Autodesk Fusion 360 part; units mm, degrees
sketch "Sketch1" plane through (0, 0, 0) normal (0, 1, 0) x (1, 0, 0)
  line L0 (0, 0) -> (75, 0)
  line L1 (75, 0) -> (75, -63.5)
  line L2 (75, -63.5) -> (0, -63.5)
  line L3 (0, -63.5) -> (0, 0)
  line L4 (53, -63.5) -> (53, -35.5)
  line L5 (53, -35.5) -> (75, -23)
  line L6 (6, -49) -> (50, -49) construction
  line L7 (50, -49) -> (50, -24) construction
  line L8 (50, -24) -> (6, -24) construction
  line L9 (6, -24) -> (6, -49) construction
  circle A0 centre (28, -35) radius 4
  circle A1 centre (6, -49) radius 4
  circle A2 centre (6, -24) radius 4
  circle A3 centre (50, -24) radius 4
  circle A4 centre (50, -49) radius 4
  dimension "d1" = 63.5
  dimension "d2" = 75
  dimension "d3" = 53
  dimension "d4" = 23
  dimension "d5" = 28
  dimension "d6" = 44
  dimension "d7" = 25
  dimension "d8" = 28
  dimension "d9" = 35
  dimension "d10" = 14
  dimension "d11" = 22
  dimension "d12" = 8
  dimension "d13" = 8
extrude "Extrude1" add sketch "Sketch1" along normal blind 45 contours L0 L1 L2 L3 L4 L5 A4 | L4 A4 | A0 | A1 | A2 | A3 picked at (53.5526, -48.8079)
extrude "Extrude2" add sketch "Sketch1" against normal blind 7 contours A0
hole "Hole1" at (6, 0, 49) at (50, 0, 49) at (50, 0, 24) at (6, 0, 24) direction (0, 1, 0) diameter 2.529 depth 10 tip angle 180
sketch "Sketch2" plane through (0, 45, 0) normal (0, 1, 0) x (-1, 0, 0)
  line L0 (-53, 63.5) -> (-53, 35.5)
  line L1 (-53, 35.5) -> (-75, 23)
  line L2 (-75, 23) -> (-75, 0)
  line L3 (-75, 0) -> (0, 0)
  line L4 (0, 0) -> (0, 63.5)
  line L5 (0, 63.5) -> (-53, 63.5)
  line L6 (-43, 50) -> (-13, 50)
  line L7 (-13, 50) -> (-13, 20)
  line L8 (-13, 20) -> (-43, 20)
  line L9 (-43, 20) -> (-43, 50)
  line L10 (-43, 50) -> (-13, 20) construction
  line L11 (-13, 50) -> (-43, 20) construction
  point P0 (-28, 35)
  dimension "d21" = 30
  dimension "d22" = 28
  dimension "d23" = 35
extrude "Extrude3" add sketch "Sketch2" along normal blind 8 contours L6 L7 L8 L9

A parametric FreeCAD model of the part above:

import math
import FreeCAD as App
import Part
import Sketcher

V = App.Vector
Q = App.Units.Quantity


def add_polygon(sketch, points):
    """Adds a closed chain of lines whose ends are joined by coincident constraints."""
    first, n = sketch.GeometryCount, len(points)
    for a, b in zip(points, points[1:] + points[:1]):
        sketch.addGeometry(Part.LineSegment(App.Vector(*a, 0), App.Vector(*b, 0)), False)
    for i in range(n):
        sketch.addConstraint(Sketcher.Constraint("Coincident", first + i, 2, first + (i + 1) % n, 1))

doc = App.newDocument("Part")
body = doc.addObject("PartDesign::Body", "Body")
body.AllowCompound = True

# Sketch on XZ plane
sketch1 = doc.addObject("Sketcher::SketchObject", "Sketch")
body.addObject(sketch1)
sketch1.AttachmentSupport = (doc.XZ_Plane, [""])
sketch1.MapMode = "FlatFace"
sketch1.addGeometry(Part.LineSegment(V(75, 0, 0), V(0, 0, 0)), False)
sketch1.addGeometry(Part.LineSegment(V(0, 0, 0), V(0, 63.5, 0)), False)
sketch1.addGeometry(Part.LineSegment(V(0, 63.5, 0), V(53, 63.5, 0)), False)
sketch1.addGeometry(Part.LineSegment(V(53, 63.5, 0), V(53, 51.6, 0)), False)
sketch1.addGeometry(Part.ArcOfCircle(Part.Circle(V(50, 49, 0), V(0, 0, 1), 4), math.radians(41), math.radians(319)), False)
sketch1.addGeometry(Part.LineSegment(V(53, 46.4, 0), V(53, 35.5, 0)), False)
sketch1.addGeometry(Part.LineSegment(V(53, 35.5, 0), V(75, 23, 0)), False)
sketch1.addGeometry(Part.LineSegment(V(75, 23, 0), V(75, 0, 0)), False)
sketch1.addGeometry(Part.LineSegment(V(53, 46.4, 0), V(53, 51.6, 0)), False)
sketch1.addGeometry(Part.ArcOfCircle(Part.Circle(V(50, 49, 0), V(0, 0, 1), 4), math.radians(-41), math.radians(41)), False)
sketch1.addConstraint(Sketcher.Constraint("Coincident", 0, 2, 1, 1))
sketch1.addConstraint(Sketcher.Constraint("Coincident", 1, 2, 2, 1))
sketch1.addConstraint(Sketcher.Constraint("Coincident", 2, 2, 3, 1))
sketch1.addConstraint(Sketcher.Constraint("Coincident", 3, 2, 4, 1))
sketch1.addConstraint(Sketcher.Constraint("Coincident", 4, 2, 5, 1))
sketch1.addConstraint(Sketcher.Constraint("Coincident", 5, 2, 6, 1))
sketch1.addConstraint(Sketcher.Constraint("Coincident", 6, 2, 7, 1))
sketch1.addConstraint(Sketcher.Constraint("Coincident", 7, 2, 0, 1))
sketch1.addConstraint(Sketcher.Constraint("Coincident", 8, 1, 9, 1))
sketch1.addConstraint(Sketcher.Constraint("Coincident", 9, 2, 8, 2))
sketch1.addConstraint(Sketcher.Constraint("Horizontal", 0))
sketch1.addConstraint(Sketcher.Constraint("Vertical", 1))
sketch1.addConstraint(Sketcher.Constraint("Horizontal", 2))
sketch1.addConstraint(Sketcher.Constraint("Vertical", 3))
sketch1.addConstraint(Sketcher.Constraint("Vertical", 5))
sketch1.addConstraint(Sketcher.Constraint("Vertical", 7))
sketch1.addConstraint(Sketcher.Constraint("Vertical", 8))
sketch1.addConstraint(Sketcher.Constraint("Coincident", 0, 2, -1, 1))
sketch1.addConstraint(Sketcher.Constraint("Coincident", 9, 3, 4, 3))
sketch1.addConstraint(Sketcher.Constraint("Coincident", 8, 1, 4, 2))
sketch1.addConstraint(Sketcher.Constraint("Vertical", 3, 2, 4, 2))
sketch1.addConstraint(Sketcher.Constraint("Radius", 4, Q("4 mm")))
sketch1.addConstraint(Sketcher.Constraint("DistanceX", 0, 2, 0, 1, Q("75 mm")))
sketch1.addConstraint(Sketcher.Constraint("DistanceX", 2, 1, 2, 2, Q("53 mm")))
sketch1.addConstraint(Sketcher.Constraint("DistanceY", 7, 2, 7, 1, Q("23 mm")))
sketch1.addConstraint(Sketcher.Constraint("DistanceY", 1, 1, 1, 2, Q("63.5 mm")))
sketch1.addConstraint(Sketcher.Constraint("DistanceY", 5, 2, 2, 2, Q("28 mm")))
sketch1.addConstraint(Sketcher.Constraint("DistanceX", 4, 3, 6, 2, Q("25 mm")))
sketch1.addConstraint(Sketcher.Constraint("DistanceY", -1, 1, 4, 3, Q("49 mm")))
pad1 = doc.addObject("PartDesign::Pad", "Pad")
body.addObject(pad1)
pad1.Profile = sketch1
pad1.Length = 45
pad1.Reversed = True

# Sketch on XZ plane
sketch2 = doc.addObject("Sketcher::SketchObject", "Sketch001")
body.addObject(sketch2)
sketch2.AttachmentSupport = (doc.XZ_Plane, [""])
sketch2.MapMode = "FlatFace"
sketch2.addGeometry(Part.Circle(V(28, 35, 0), V(0, 0, 1), 4), False)
sketch2.addConstraint(Sketcher.Constraint("Diameter", 0, Q("8 mm")))
sketch2.addConstraint(Sketcher.Constraint("DistanceX", -1, 1, 0, 3, Q("28 mm")))
sketch2.addConstraint(Sketcher.Constraint("DistanceY", -1, 1, 0, 3, Q("35 mm")))
pad2 = doc.addObject("PartDesign::Pad", "Pad001")
body.addObject(pad2)
pad2.Profile = sketch2
pad2.Length = 7

# Sketch on XZ plane
sketch3 = doc.addObject("Sketcher::SketchObject", "Sketch002")
body.addObject(sketch3)
sketch3.AttachmentSupport = (doc.XZ_Plane, [""])
sketch3.MapMode = "FlatFace"
sketch3.addGeometry(Part.Circle(V(6, 49, 0), V(0, 0, 1), 1.3), False)
sketch3.addGeometry(Part.Circle(V(50, 49, 0), V(0, 0, 1), 1.3), False)
sketch3.addGeometry(Part.Circle(V(50, 24, 0), V(0, 0, 1), 1.3), False)
sketch3.addGeometry(Part.Circle(V(6, 24, 0), V(0, 0, 1), 1.3), False)
sketch3.addConstraint(Sketcher.Constraint("Equal", 0, 1))
sketch3.addConstraint(Sketcher.Constraint("Equal", 1, 2))
sketch3.addConstraint(Sketcher.Constraint("Equal", 2, 3))
sketch3.addConstraint(Sketcher.Constraint("Horizontal", 0, 3, 1, 3))
sketch3.addConstraint(Sketcher.Constraint("Horizontal", 2, 3, 3, 3))
sketch3.addConstraint(Sketcher.Constraint("Vertical", 1, 3, 2, 3))
sketch3.addConstraint(Sketcher.Constraint("Vertical", 0, 3, 3, 3))
sketch3.addConstraint(Sketcher.Constraint("Diameter", 0, Q("2.529 mm")))
sketch3.addConstraint(Sketcher.Constraint("DistanceX", -1, 1, 0, 3, Q("6 mm")))
sketch3.addConstraint(Sketcher.Constraint("DistanceY", -1, 1, 0, 3, Q("49 mm")))
sketch3.addConstraint(Sketcher.Constraint("DistanceX", -1, 1, 1, 3, Q("50 mm")))
sketch3.addConstraint(Sketcher.Constraint("DistanceY", -1, 1, 2, 3, Q("24 mm")))
doc.recompute()
hole = doc.addObject("PartDesign::Hole", "Hole")
body.addObject(hole)
hole.Profile = sketch3
hole.ThreadType = "None"
hole.Diameter = 2.529
hole.DepthType = "Dimension"
hole.Depth = 10
hole.DrillPoint = "Flat"

# Sketch on XZ plane
sketch4 = doc.addObject("Sketcher::SketchObject", "Sketch003")
body.addObject(sketch4)
sketch4.AttachmentSupport = (doc.XZ_Plane, [""])
sketch4.MapMode = "FlatFace"
sketch4.AttachmentOffset = App.Placement(V(0, 0, -45), App.Rotation())
add_polygon(sketch4, [(13, 50), (43, 50), (43, 20), (13, 20)])  # lines 0-3
sketch4.addConstraint(Sketcher.Constraint("Horizontal", 0))
sketch4.addConstraint(Sketcher.Constraint("Vertical", 1))
sketch4.addConstraint(Sketcher.Constraint("Horizontal", 2))
sketch4.addConstraint(Sketcher.Constraint("Vertical", 3))
sketch4.addConstraint(Sketcher.Constraint("Equal", 2, 1))
sketch4.addConstraint(Sketcher.Constraint("DistanceX", 0, 1, 0, 2, Q("30 mm")))
sketch4.addConstraint(Sketcher.Constraint("DistanceX", -1, 1, 0, 2, Q("43 mm")))
sketch4.addConstraint(Sketcher.Constraint("DistanceY", -1, 1, 0, 2, Q("50 mm")))
pad3 = doc.addObject("PartDesign::Pad", "Pad002")
body.addObject(pad3)
pad3.Profile = sketch4
pad3.Length = 8
pad3.Reversed = True

doc.recompute()
